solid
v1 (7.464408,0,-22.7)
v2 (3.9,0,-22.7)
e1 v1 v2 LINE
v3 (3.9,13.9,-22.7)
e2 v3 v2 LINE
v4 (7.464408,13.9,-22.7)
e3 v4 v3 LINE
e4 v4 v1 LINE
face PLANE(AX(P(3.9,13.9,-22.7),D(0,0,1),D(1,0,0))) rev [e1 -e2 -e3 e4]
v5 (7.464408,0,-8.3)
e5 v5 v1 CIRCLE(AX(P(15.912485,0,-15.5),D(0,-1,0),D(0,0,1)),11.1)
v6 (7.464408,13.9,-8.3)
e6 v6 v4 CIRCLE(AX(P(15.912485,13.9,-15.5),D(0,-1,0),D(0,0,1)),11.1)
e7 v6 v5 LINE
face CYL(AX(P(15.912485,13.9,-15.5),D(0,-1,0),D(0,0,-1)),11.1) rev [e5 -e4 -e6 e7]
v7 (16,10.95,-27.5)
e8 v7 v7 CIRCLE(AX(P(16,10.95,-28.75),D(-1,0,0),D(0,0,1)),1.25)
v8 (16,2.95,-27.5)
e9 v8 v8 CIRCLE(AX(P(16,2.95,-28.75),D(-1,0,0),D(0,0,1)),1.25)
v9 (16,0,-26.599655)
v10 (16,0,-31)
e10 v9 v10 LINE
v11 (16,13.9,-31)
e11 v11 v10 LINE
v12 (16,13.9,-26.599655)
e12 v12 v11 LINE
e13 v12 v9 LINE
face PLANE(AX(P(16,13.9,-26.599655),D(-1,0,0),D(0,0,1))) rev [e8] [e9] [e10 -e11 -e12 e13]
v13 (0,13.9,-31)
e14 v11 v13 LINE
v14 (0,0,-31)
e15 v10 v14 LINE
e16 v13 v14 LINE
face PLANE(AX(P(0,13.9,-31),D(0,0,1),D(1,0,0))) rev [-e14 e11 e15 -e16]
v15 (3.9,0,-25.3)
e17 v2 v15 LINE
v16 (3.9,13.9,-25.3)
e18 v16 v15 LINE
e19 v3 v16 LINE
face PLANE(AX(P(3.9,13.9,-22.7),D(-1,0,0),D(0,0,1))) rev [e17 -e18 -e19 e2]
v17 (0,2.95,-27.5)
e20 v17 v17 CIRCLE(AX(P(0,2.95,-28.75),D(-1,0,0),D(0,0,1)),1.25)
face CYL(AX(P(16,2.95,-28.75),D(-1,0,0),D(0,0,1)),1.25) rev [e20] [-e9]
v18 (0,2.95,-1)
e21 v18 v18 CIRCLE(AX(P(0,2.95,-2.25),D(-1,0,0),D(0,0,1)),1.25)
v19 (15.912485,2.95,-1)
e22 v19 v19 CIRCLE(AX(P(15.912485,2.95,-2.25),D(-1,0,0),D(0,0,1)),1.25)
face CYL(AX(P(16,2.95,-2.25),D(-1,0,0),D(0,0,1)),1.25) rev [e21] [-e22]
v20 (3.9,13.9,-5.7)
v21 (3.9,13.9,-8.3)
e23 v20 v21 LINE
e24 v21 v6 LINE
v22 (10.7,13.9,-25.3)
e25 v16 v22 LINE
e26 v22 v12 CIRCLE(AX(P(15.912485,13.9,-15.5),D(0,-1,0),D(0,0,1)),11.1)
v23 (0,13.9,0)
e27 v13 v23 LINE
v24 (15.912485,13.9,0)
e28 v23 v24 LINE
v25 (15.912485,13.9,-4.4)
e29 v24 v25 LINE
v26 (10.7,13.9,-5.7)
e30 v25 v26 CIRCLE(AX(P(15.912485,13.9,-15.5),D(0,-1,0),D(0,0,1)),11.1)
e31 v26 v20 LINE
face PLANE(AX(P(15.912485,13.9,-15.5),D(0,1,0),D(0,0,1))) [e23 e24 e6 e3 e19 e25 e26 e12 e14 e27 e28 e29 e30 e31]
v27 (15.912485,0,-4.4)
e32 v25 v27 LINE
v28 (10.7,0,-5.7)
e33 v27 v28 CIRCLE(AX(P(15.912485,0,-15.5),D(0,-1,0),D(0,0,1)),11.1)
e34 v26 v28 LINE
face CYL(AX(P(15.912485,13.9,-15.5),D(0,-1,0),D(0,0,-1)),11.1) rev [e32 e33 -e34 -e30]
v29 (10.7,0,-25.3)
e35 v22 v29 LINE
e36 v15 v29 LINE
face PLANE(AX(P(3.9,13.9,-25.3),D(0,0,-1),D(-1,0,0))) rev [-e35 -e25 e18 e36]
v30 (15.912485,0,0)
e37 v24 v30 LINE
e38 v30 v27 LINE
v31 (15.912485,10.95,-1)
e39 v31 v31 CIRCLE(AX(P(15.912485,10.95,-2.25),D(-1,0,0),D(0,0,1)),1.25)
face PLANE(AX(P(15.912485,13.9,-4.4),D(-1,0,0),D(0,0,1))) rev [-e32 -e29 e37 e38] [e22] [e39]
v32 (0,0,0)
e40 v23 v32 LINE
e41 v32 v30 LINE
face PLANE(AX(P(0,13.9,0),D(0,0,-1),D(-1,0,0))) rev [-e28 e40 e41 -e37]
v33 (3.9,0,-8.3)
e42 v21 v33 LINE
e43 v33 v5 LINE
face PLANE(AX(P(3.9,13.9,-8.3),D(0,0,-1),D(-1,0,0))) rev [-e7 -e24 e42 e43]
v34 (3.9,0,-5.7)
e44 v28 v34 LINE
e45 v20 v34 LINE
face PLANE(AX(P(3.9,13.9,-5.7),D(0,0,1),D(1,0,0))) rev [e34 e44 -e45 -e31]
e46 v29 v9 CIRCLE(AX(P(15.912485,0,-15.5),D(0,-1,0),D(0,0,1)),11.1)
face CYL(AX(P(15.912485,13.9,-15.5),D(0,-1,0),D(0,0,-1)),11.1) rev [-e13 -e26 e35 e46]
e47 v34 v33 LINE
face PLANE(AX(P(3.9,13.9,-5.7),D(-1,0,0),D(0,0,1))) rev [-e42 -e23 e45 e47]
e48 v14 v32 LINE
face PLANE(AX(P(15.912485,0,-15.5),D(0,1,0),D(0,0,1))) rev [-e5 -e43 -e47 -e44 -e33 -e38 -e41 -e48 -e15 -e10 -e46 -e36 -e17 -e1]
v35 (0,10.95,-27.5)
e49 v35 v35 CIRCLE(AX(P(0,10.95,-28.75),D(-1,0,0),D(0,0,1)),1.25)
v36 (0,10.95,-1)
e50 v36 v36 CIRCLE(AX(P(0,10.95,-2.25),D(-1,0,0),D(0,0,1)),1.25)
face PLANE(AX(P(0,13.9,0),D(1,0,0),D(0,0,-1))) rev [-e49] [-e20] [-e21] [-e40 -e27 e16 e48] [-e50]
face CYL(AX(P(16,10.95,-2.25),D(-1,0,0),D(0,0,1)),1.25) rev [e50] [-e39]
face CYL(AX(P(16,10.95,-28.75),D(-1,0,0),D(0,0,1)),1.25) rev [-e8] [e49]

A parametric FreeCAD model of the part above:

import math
import FreeCAD as App
import Part
import Sketcher

V = App.Vector

doc = App.newDocument("Part")
body = doc.addObject("PartDesign::Body", "Body")

# Sketch on XZ plane
sketch1 = body.newObject("Sketcher::SketchObject", "Sketch")
sketch1.AttachmentSupport = (doc.getObject("XZ_Plane"), [""])
sketch1.MapMode = "FlatFace"
sketch1.addGeometry([
    Part.LineSegment(V(0, 0, 0), V(15.912485, 0, 0)),  # 0
    Part.LineSegment(V(15.912485, 0, 0), V(15.912485, -4.4, 0)),  # 1
    Part.ArcOfCircle(Part.Circle(V(15.912485, -15.5, 0), V(0, 0, 1), 11.1), math.radians(90), math.radians(118.007896)),  # 2
    Part.LineSegment(V(10.7, -5.7, 0), V(3.9, -5.7, 0)),  # 3
    Part.LineSegment(V(3.9, -5.7, 0), V(3.9, -8.3, 0)),  # 4
    Part.LineSegment(V(3.9, -8.3, 0), V(7.464408, -8.3, 0)),  # 5
    Part.ArcOfCircle(Part.Circle(V(15.912485, -15.5, 0), V(0, 0, 1), 11.1), math.radians(139.560207), math.radians(220.439793)),  # 6
    Part.LineSegment(V(7.464408, -22.7, 0), V(3.9, -22.7, 0)),  # 7
    Part.LineSegment(V(3.9, -22.7, 0), V(3.9, -25.3, 0)),  # 8
    Part.LineSegment(V(3.9, -25.3, 0), V(10.7, -25.3, 0)),  # 9
    Part.ArcOfCircle(Part.Circle(V(15.912485, -15.5, 0), V(0, 0, 1), 11.1), math.radians(-118.007896), math.radians(-89.548262)),  # 10
    Part.LineSegment(V(16, -26.599655, 0), V(16, -31, 0)),  # 11
    Part.LineSegment(V(16, -31, 0), V(0, -31, 0)),  # 12
    Part.LineSegment(V(0, -31, 0), V(0, 0, 0)),  # 13
], False)
sketch1.addConstraint([
    Sketcher.Constraint("Coincident", 0, 2, 1, 1),
    Sketcher.Constraint("Coincident", 1, 2, 2, 1),
    Sketcher.Constraint("Coincident", 2, 2, 3, 1),
    Sketcher.Constraint("Coincident", 3, 2, 4, 1),
    Sketcher.Constraint("Coincident", 4, 2, 5, 1),
    Sketcher.Constraint("Coincident", 5, 2, 6, 1),
    Sketcher.Constraint("Coincident", 6, 2, 7, 1),
    Sketcher.Constraint("Coincident", 7, 2, 8, 1),
    Sketcher.Constraint("Coincident", 8, 2, 9, 1),
    Sketcher.Constraint("Coincident", 9, 2, 10, 1),
    Sketcher.Constraint("Coincident", 10, 2, 11, 1),
    Sketcher.Constraint("Coincident", 11, 2, 12, 1),
    Sketcher.Constraint("Coincident", 12, 2, 13, 1),
    Sketcher.Constraint("Coincident", 13, 2, 0, 1),
    Sketcher.Constraint("Horizontal", 0),
    Sketcher.Constraint("Vertical", 1),
    Sketcher.Constraint("Horizontal", 3),
    Sketcher.Constraint("Vertical", 4),
    Sketcher.Constraint("Horizontal", 5),
    Sketcher.Constraint("Horizontal", 7),
    Sketcher.Constraint("Vertical", 8),
    Sketcher.Constraint("Horizontal", 9),
    Sketcher.Constraint("Vertical", 11),
    Sketcher.Constraint("Horizontal", 12),
    Sketcher.Constraint("Vertical", 13),
    Sketcher.Constraint("Coincident", 13, 2, -1, 1),
    Sketcher.Constraint("Coincident", 6, 3, 2, 3),
    Sketcher.Constraint("Coincident", 10, 3, 2, 3),
    Sketcher.Constraint("Equal", 2, 6),
    Sketcher.Constraint("Equal", 6, 10),
    Sketcher.Constraint("Vertical", 10, 3, 0, 2),
    Sketcher.Constraint("Vertical", 5, 2, 6, 2),
    Sketcher.Constraint("Vertical", 4, 2, 7, 2),
    Sketcher.Constraint("Vertical", 2, 2, 9, 2),
    Sketcher.Constraint("Radius", 2, 11.1),
    Sketcher.Constraint("DistanceX", 12, 2, 12, 1, 16.0),
    Sketcher.Constraint("DistanceY", 13, 1, 13, 2, 31.0),
    Sketcher.Constraint("DistanceX", 3, 2, 3, 1, 6.8),
    Sketcher.Constraint("DistanceY", 1, 2, 1, 1, 4.4),
    Sketcher.Constraint("DistanceY", 4, 2, 4, 1, 2.6),
    Sketcher.Constraint("DistanceX", -1, 1, 2, 2, 10.7),
    Sketcher.Constraint("DistanceY", 2, 2, -1, 1, 5.7),
])
pad1 = body.newObject("PartDesign::Pad", "Pad")
pad1.Profile = sketch1
pad1.Length = 13.9
pad1.Reversed = True

# Sketch on YZ plane
sketch2 = body.newObject("Sketcher::SketchObject", "Sketch001")
sketch2.AttachmentSupport = (doc.getObject("YZ_Plane"), [""])
sketch2.MapMode = "FlatFace"
sketch2.addGeometry([
    Part.Circle(V(10.95, -28.75, 0), V(0, 0, 1), 1.25),
    Part.Circle(V(10.95, -2.25, 0), V(0, 0, 1), 1.25),
    Part.Circle(V(2.95, -2.25, 0), V(0, 0, 1), 1.25),
    Part.Circle(V(2.95, -28.75, 0), V(0, 0, 1), 1.25),
], False)
sketch2.addConstraint([
    Sketcher.Constraint("Equal", 0, 1),
    Sketcher.Constraint("Equal", 1, 2),
    Sketcher.Constraint("Equal", 2, 3),
    Sketcher.Constraint("Horizontal", 1, 3, 2, 3),
    Sketcher.Constraint("Horizontal", 0, 3, 3, 3),
    Sketcher.Constraint("Vertical", 0, 3, 1, 3),
    Sketcher.Constraint("Vertical", 2, 3, 3, 3),
    Sketcher.Constraint("Diameter", 0, 2.5),
    Sketcher.Constraint("DistanceX", 2, 3, 1, 3, 8.0),
    Sketcher.Constraint("DistanceY", 0, 3, 1, 3, 26.5),
    Sketcher.Constraint("DistanceX", -1, 1, 0, 3, 10.95),
    Sketcher.Constraint("DistanceY", 0, 3, -1, 1, 28.75),
])
pocket1 = body.newObject("PartDesign::Pocket", "Pocket")
pocket1.Profile = sketch2
pocket1.Type = "ThroughAll"
pocket1.Reversed = True

doc.recompute()
